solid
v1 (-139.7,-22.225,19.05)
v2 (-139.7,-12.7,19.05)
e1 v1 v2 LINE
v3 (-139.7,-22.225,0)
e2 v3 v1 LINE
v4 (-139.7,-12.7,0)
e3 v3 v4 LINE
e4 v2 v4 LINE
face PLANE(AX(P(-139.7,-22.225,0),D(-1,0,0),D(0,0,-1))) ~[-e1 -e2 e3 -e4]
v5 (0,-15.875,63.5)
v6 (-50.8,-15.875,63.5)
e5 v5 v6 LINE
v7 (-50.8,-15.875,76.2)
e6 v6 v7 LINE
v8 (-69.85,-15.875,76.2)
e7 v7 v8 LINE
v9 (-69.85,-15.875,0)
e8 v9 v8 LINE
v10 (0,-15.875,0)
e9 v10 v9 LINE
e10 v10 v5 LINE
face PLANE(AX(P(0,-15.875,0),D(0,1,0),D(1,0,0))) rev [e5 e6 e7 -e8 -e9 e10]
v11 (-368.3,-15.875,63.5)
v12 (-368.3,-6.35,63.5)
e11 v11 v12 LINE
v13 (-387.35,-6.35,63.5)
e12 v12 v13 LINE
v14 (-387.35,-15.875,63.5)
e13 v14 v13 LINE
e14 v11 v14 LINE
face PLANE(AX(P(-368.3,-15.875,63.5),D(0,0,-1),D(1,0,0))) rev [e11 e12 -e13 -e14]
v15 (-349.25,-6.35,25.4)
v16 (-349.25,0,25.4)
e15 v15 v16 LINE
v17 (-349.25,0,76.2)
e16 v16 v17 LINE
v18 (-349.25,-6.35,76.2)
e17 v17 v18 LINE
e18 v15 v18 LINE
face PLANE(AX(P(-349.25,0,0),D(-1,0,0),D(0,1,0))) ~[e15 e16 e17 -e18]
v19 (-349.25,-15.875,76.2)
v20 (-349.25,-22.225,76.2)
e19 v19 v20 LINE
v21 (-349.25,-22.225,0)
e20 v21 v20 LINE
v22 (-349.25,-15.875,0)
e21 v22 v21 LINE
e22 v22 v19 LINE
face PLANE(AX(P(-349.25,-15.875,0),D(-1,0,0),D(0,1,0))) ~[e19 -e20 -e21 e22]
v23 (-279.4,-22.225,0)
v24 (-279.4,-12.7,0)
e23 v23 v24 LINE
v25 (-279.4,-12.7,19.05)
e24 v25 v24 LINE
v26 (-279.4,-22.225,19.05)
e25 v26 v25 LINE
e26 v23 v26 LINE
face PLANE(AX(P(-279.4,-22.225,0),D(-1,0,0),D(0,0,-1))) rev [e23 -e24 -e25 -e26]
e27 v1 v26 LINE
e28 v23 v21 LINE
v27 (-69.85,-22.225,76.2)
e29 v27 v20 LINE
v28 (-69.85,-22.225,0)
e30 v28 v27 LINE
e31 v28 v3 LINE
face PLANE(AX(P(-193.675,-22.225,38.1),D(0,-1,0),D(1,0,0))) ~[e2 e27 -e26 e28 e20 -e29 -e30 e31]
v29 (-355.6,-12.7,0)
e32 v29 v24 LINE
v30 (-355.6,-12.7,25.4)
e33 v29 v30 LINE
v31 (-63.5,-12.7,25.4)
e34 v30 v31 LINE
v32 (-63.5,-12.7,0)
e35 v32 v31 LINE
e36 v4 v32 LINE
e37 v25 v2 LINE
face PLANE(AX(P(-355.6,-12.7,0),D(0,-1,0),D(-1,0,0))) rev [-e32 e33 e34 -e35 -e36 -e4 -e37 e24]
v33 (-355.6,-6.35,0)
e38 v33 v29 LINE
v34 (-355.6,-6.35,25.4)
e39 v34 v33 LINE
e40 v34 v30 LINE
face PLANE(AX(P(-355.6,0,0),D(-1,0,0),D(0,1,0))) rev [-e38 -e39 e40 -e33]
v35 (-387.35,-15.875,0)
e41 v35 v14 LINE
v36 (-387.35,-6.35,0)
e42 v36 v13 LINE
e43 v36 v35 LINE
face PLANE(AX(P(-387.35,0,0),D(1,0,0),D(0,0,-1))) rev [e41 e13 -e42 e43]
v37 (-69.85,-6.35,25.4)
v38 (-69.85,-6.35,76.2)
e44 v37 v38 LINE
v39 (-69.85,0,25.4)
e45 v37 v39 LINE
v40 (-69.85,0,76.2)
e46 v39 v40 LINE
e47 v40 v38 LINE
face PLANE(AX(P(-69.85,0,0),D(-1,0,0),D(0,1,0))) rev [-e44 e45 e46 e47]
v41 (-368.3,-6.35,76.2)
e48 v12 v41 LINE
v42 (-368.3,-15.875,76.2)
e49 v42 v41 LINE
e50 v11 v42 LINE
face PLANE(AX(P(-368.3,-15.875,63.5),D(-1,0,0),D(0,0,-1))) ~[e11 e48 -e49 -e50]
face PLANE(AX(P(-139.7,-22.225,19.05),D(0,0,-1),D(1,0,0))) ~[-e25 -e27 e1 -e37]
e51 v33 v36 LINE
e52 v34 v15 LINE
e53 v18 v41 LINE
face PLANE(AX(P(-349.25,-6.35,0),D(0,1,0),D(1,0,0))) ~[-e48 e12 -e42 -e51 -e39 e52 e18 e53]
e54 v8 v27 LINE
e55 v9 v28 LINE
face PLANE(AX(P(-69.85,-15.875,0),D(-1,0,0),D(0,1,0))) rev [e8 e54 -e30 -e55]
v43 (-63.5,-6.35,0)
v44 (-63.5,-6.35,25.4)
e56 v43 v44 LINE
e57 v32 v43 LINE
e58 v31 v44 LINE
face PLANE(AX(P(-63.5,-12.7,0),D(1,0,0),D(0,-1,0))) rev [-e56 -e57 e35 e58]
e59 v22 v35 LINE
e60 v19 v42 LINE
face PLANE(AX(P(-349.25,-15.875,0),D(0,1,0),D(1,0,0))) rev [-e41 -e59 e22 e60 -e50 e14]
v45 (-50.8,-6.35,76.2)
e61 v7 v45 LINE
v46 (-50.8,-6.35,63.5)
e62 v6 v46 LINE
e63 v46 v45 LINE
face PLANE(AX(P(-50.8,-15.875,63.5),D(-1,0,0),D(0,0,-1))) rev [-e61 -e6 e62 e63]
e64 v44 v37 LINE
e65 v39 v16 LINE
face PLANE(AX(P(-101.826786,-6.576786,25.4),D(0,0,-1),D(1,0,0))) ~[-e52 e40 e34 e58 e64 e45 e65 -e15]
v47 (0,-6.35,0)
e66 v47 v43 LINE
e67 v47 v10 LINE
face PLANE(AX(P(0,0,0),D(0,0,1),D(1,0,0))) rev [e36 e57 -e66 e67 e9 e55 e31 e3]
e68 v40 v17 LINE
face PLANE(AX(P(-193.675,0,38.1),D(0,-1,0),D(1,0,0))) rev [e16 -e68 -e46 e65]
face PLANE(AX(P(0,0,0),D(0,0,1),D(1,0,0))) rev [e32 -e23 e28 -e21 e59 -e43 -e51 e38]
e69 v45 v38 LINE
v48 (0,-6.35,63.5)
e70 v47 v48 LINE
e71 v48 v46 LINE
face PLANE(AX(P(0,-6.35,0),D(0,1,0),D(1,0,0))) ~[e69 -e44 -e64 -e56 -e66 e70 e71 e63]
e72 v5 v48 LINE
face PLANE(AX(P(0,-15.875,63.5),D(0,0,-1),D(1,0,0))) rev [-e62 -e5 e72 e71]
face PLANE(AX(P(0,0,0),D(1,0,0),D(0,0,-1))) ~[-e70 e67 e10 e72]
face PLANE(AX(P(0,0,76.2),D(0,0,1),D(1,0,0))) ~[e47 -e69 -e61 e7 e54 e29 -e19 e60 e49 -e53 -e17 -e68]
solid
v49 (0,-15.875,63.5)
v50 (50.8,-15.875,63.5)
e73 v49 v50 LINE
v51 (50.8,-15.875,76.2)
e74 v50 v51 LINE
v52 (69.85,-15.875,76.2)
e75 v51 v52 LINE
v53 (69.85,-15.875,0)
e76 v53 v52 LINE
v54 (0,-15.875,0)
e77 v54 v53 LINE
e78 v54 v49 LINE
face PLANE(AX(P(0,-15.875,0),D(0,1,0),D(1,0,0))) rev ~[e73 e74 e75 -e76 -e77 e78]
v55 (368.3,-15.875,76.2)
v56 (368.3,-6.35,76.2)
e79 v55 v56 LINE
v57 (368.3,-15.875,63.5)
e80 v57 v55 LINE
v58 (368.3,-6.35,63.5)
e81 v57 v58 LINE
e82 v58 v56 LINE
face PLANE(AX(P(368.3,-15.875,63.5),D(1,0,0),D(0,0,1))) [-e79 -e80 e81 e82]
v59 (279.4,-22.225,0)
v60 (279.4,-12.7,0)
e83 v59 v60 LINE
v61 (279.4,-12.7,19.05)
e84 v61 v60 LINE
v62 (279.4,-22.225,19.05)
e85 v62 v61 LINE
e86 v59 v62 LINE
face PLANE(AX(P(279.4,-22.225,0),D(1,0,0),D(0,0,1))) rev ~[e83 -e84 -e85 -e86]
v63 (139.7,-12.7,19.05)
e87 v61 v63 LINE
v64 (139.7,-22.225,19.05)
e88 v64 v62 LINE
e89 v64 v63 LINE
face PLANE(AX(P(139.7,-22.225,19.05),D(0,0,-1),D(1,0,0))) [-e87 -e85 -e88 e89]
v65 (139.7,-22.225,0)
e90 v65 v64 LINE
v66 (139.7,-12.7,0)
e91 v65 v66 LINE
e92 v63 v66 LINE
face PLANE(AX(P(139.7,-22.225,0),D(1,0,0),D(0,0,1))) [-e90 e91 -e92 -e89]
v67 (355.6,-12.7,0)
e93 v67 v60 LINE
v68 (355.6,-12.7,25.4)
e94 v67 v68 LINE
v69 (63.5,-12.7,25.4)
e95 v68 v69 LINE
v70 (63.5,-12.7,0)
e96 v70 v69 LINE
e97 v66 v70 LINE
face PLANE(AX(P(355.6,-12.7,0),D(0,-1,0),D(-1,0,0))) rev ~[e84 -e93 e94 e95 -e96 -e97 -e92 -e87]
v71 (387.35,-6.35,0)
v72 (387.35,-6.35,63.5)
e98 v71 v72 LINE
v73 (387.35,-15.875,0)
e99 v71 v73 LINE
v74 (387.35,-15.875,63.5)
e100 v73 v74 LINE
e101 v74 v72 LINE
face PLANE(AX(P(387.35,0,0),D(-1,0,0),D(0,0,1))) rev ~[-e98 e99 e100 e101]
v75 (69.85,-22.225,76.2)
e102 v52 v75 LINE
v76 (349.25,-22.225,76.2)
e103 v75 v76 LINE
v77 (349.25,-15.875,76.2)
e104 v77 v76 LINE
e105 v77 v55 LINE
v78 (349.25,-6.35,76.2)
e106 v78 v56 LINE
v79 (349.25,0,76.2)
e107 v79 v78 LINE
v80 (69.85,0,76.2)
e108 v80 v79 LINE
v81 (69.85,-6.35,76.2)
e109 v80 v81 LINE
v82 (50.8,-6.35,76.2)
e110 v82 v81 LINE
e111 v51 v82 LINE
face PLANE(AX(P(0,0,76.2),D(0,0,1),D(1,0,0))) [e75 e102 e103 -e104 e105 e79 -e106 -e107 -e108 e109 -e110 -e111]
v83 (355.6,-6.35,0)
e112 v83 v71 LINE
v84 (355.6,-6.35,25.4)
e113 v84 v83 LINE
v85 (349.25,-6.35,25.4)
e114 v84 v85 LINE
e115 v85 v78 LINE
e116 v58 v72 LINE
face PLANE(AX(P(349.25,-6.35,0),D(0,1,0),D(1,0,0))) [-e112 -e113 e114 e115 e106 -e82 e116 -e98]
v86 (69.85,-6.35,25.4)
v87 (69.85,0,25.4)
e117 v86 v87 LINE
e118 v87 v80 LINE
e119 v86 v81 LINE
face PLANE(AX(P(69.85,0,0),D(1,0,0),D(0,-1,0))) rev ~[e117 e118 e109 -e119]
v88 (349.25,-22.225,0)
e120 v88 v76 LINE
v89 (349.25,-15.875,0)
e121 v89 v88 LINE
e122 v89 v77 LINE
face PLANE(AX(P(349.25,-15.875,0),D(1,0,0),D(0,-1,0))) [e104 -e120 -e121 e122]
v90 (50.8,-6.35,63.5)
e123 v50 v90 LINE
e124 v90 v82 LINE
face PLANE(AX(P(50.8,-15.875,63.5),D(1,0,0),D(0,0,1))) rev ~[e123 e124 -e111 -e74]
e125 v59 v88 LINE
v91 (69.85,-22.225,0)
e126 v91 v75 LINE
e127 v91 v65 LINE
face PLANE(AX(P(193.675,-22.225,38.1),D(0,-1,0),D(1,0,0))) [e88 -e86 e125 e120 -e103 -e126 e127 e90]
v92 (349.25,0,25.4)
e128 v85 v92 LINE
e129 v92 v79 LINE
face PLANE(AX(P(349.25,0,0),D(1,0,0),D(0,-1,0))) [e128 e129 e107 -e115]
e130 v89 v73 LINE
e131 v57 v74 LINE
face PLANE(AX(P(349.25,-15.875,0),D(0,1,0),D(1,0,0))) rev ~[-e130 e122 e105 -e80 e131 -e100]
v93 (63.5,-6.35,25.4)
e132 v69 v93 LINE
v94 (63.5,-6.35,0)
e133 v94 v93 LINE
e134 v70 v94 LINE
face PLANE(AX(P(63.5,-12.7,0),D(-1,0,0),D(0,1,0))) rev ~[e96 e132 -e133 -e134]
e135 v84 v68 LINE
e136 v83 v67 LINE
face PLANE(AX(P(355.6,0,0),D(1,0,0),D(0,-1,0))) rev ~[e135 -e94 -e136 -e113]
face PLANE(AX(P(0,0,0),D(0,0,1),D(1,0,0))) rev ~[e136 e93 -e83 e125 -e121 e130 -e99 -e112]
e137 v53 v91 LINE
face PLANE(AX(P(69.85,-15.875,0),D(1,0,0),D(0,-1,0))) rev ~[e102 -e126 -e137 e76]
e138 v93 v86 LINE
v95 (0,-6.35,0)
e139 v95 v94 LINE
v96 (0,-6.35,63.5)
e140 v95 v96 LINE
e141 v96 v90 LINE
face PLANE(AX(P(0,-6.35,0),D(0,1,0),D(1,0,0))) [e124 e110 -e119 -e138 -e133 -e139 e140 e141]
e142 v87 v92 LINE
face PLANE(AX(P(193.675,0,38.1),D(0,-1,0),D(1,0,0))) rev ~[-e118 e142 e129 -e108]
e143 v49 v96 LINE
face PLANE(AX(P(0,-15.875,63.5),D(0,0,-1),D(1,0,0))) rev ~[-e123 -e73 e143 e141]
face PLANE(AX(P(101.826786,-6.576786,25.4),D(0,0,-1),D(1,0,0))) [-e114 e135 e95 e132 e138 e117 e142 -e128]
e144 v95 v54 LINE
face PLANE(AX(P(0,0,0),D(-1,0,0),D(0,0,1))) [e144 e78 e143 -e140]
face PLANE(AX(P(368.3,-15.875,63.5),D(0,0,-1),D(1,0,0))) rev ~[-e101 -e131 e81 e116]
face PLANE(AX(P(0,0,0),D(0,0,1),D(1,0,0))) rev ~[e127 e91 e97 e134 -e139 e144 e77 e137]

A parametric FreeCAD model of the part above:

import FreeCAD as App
import Part
import Sketcher
Q = App.Units.Quantity


def add_polygon(sketch, points):
    """Adds a closed chain of lines whose ends are joined by coincident constraints."""
    first, n = sketch.GeometryCount, len(points)
    for a, b in zip(points, points[1:] + points[:1]):
        sketch.addGeometry(Part.LineSegment(App.Vector(*a, 0), App.Vector(*b, 0)), False)
    for i in range(n):
        sketch.addConstraint(Sketcher.Constraint("Coincident", first + i, 2, first + (i + 1) % n, 1))

doc = App.newDocument("Part")
params = doc.addObject("Spreadsheet::Sheet", "Params")
for row, (alias, value) in enumerate([
    ("sketch1_height", "3 in"),
    ("sketch1_width", "15.25 in"),
    ("pad1_length", "0.875 in"),
    ("sketch2_width", "1.5 in"),
    ("sketch2_width2", "2.75 in"),
    ("sketch2_height", "0.25 in"),
    ("sketch3_width", "2 in"),
    ("sketch3_height", "0.5 in"),
    ("sketch3_width2", "0.75 in"),
    ("sketch4_width", "5.5 in"),
    ("sketch4_height", "0.75 in"),
    ("sketch5_width", "11.5 in"),
    ("sketch5_height", "0.5 in"),
    ("pocket4_length", "1 in"),
], start=1):
    params.set(f"A{row}", alias)
    params.set(f"B{row}", "=" + value)
    params.setAlias(f"B{row}", alias)

body = doc.addObject("PartDesign::Body", "Body")

# Sketch on XZ plane
sketch1 = body.newObject("Sketcher::SketchObject", "Sketch")
sketch1.AttachmentSupport = (doc.getObject("XZ_Plane"), [""])
sketch1.MapMode = "FlatFace"
add_polygon(sketch1, [(0, 76), (0, 0), (387, 0), (387, 76)])  # lines 0-3
sketch1.addConstraint([
    Sketcher.Constraint("Vertical", 0),
    Sketcher.Constraint("Horizontal", 1),
    Sketcher.Constraint("Vertical", 2),
    Sketcher.Constraint("Horizontal", 3),
    Sketcher.Constraint("Coincident", 0, 2, -1, 1),
    Sketcher.Constraint("DistanceY", 0, 2, 0, 1, Q("3 in")),
    Sketcher.Constraint("DistanceX", 1, 1, 1, 2, Q("15.25 in")),
])
sketch1.setExpression("Constraints[9]", "Params.sketch1_height")
sketch1.setExpression("Constraints[10]", "Params.sketch1_width")
pad1 = body.newObject("PartDesign::Pad", "Pad")
pad1.Profile = sketch1
pad1.setExpression("Length", "Params.pad1_length")

# Sketch on XY plane
sketch2 = body.newObject("Sketcher::SketchObject", "Sketch001")
sketch2.AttachmentSupport = (doc.getObject("XY_Plane"), [""])
sketch2.MapMode = "FlatFace"
add_polygon(sketch2, [(0, -22), (0, -16), (70, -16), (70, -22)])  # lines 0-3
add_polygon(sketch2, [(0, -6), (0, 0), (70, 0), (70, -6)])  # lines 4-7
add_polygon(sketch2, [(349, -22), (349, -16), (387, -16), (387, -22)])  # lines 8-11
add_polygon(sketch2, [(349, -6), (349, 0), (387, 0), (387, -6)])  # lines 12-15
sketch2.addConstraint([
    Sketcher.Constraint("Vertical", 0),
    Sketcher.Constraint("Horizontal", 1),
    Sketcher.Constraint("Vertical", 2),
    Sketcher.Constraint("Horizontal", 3),
    Sketcher.Constraint("Vertical", 4),
    Sketcher.Constraint("Horizontal", 5),
    Sketcher.Constraint("Vertical", 6),
    Sketcher.Constraint("Horizontal", 7),
    Sketcher.Constraint("Vertical", 8),
    Sketcher.Constraint("Horizontal", 9),
    Sketcher.Constraint("Vertical", 10),
    Sketcher.Constraint("Horizontal", 11),
    Sketcher.Constraint("Vertical", 12),
    Sketcher.Constraint("Horizontal", 13),
    Sketcher.Constraint("Vertical", 14),
    Sketcher.Constraint("Horizontal", 15),
    Sketcher.Constraint("Coincident", 4, 2, -1, 1),
    Sketcher.Constraint("PointOnObject", 0, 2, -2),
    Sketcher.Constraint("PointOnObject", 12, 2, -1),
    Sketcher.Constraint("Horizontal", 1, 2, 8, 2),
    Sketcher.Constraint("Horizontal", 3, 2, 10, 2),
    Sketcher.Constraint("Horizontal", 7, 2, 14, 2),
    Sketcher.Constraint("Vertical", 2, 2, 5, 2),
    Sketcher.Constraint("Vertical", 11, 2, 12, 2),
    Sketcher.Constraint("Vertical", 10, 2, 13, 2),
    Sketcher.Constraint("Equal", 2, 4),
    Sketcher.Constraint("DistanceX", 9, 1, 9, 2, Q("1.5 in")),
    Sketcher.Constraint("DistanceX", 1, 2, 8, 2, Q("11 in")),
    Sketcher.Constraint("DistanceX", 1, 1, 1, 2, Q("2.75 in")),
    Sketcher.Constraint("DistanceY", 0, 1, 0, 2, Q("0.25 in")),
    Sketcher.Constraint("DistanceY", 0, 2, -1, 1, Q("0.625 in")),
])
sketch2.setExpression("Constraints[42]", "Params.sketch2_width")
sketch2.setExpression("Constraints[44]", "Params.sketch2_width2")
sketch2.setExpression("Constraints[45]", "Params.sketch2_height")
pocket1 = body.newObject("PartDesign::Pocket", "Pocket")
pocket1.Profile = sketch2
pocket1.Type = "ThroughAll"
pocket1.Reversed = True

# Sketch on XZ plane
sketch3 = body.newObject("Sketcher::SketchObject", "Sketch002")
sketch3.AttachmentSupport = (doc.getObject("XZ_Plane"), [""])
sketch3.MapMode = "FlatFace"
sketch3.AttachmentOffset = App.Placement(App.Vector(0, 0, 0.625 * 25.4), App.Rotation())
add_polygon(sketch3, [(0, 76), (0, 64), (51, 64), (51, 76)])  # lines 0-3
add_polygon(sketch3, [(368, 76), (368, 64), (387, 64), (387, 76)])  # lines 4-7
sketch3.addConstraint([
    Sketcher.Constraint("Vertical", 0),
    Sketcher.Constraint("Horizontal", 1),
    Sketcher.Constraint("Vertical", 2),
    Sketcher.Constraint("Horizontal", 3),
    Sketcher.Constraint("Vertical", 4),
    Sketcher.Constraint("Horizontal", 5),
    Sketcher.Constraint("Vertical", 6),
    Sketcher.Constraint("Horizontal", 7),
    Sketcher.Constraint("PointOnObject", 0, 2, -2),
    Sketcher.Constraint("Horizontal", 1, 2, 4, 2),
    Sketcher.Constraint("Horizontal", 3, 2, 6, 2),
    Sketcher.Constraint("DistanceX", 1, 1, 1, 2, Q("2 in")),
    Sketcher.Constraint("DistanceY", 0, 2, 0, 1, Q("0.5 in")),
    Sketcher.Constraint("DistanceY", -1, 1, 2, 2, Q("3 in")),
    Sketcher.Constraint("DistanceX", 5, 1, 5, 2, Q("0.75 in")),
    Sketcher.Constraint("DistanceX", -1, 1, 4, 2, Q("14.5 in")),
])
sketch3.setExpression("Constraints[19]", "Params.sketch3_width")
sketch3.setExpression("Constraints[20]", "Params.sketch3_height")
sketch3.setExpression("Constraints[22]", "Params.sketch3_width2")
pocket2 = body.newObject("PartDesign::Pocket", "Pocket001")
pocket2.Profile = sketch3
pocket2.Type = "ThroughAll"

# Sketch on XZ plane
sketch4 = body.newObject("Sketcher::SketchObject", "Sketch003")
sketch4.AttachmentSupport = (doc.getObject("XZ_Plane"), [""])
sketch4.MapMode = "FlatFace"
sketch4.AttachmentOffset = App.Placement(App.Vector(0, 0, 0.875 * 25.4), App.Rotation())
add_polygon(sketch4, [(140, 19), (140, 0), (279, 0), (279, 19)])  # lines 0-3
sketch4.addConstraint([
    Sketcher.Constraint("Vertical", 0),
    Sketcher.Constraint("Horizontal", 1),
    Sketcher.Constraint("Vertical", 2),
    Sketcher.Constraint("Horizontal", 3),
    Sketcher.Constraint("PointOnObject", 0, 2, -1),
    Sketcher.Constraint("DistanceX", 1, 1, 1, 2, Q("5.5 in")),
    Sketcher.Constraint("DistanceX", -1, 1, 1, 2, Q("11 in")),
    Sketcher.Constraint("DistanceY", 0, 2, 0, 1, Q("0.75 in")),
])
sketch4.setExpression("Constraints[9]", "Params.sketch4_width")
sketch4.setExpression("Constraints[11]", "Params.sketch4_height")
pocket3 = body.newObject("PartDesign::Pocket", "Pocket002")
pocket3.Profile = sketch4
pocket3.Type = "ThroughAll"

# Sketch on XY plane
sketch5 = body.newObject("Sketcher::SketchObject", "Sketch004")
sketch5.AttachmentSupport = (doc.getObject("XY_Plane"), [""])
sketch5.MapMode = "FlatFace"
add_polygon(sketch5, [(70, -6), (70, 0), (356, 0), (356, -13), (64, -13), (64, -6)])  # lines 0-5
sketch5.addConstraint([
    Sketcher.Constraint("Vertical", 0),
    Sketcher.Constraint("Horizontal", 1),
    Sketcher.Constraint("Vertical", 2),
    Sketcher.Constraint("Horizontal", 3),
    Sketcher.Constraint("Vertical", 4),
    Sketcher.Constraint("Horizontal", 5),
    Sketcher.Constraint("PointOnObject", 0, 2, -1),
    Sketcher.Constraint("Equal", 5, 0),
    Sketcher.Constraint("Equal", 0, 4),
    Sketcher.Constraint("DistanceX", 3, 2, 3, 1, Q("11.5 in")),
    Sketcher.Constraint("DistanceY", 2, 2, 2, 1, Q("0.5 in")),
    Sketcher.Constraint("DistanceX", -1, 1, 1, 2, Q("14 in")),
])
sketch5.setExpression("Constraints[15]", "Params.sketch5_width")
sketch5.setExpression("Constraints[16]", "Params.sketch5_height")
pocket4 = body.newObject("PartDesign::Pocket", "Pocket003")
pocket4.Profile = sketch5
pocket4.setExpression("Length", "Params.pocket4_length")
pocket4.Reversed = True
body2 = doc.addObject("PartDesign::Body", "Body001")
doc.recompute()

mirroring = doc.addObject("Part::Mirroring", "Mirroring")
mirroring.Source = body
mirroring.Base = App.Vector(0, 0, 0)
mirroring.Normal = App.Vector(1, 0, 0)
body2.BaseFeature = mirroring
doc.recompute()
mirroring.Visibility = False

doc.recompute()
